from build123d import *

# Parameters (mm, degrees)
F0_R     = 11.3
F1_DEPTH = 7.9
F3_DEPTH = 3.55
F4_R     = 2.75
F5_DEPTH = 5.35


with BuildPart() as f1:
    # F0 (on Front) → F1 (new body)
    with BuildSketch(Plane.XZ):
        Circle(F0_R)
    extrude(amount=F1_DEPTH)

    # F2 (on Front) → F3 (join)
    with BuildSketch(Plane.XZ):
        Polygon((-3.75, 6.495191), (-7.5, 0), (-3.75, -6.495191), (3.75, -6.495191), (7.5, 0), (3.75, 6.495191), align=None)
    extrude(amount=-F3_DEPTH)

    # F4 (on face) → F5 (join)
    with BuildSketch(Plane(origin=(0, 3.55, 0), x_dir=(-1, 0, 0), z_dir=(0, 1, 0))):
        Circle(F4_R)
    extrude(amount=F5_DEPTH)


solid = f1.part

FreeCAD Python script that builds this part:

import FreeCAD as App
import Part
import Sketcher
Q = App.Units.Quantity

doc = App.newDocument("Part")
params = doc.addObject("Spreadsheet::Sheet", "Params")
for row, (alias, value) in enumerate([
    ("sketch1_diameter", "22.6 mm"),
    ("pad1_length", "7.9 mm"),
    ("sketch2_width", "7.5 mm"),
    ("pad2_length", "3.55 mm"),
    ("sketch3_diameter", "5.5 mm"),
    ("pad3_length", "5.35 mm"),
], start=1):
    params.set(f"A{row}", alias)
    params.set(f"B{row}", "=" + value)
    params.setAlias(f"B{row}", alias)

body = doc.addObject("PartDesign::Body", "Body")

# Sketch on XZ plane
sketch1 = doc.addObject("Sketcher::SketchObject", "Sketch")
body.addObject(sketch1)
sketch1.AttachmentSupport = (doc.XZ_Plane, [""])
sketch1.MapMode = "FlatFace"
sketch1.addGeometry(Part.Circle(App.Vector(0, 0, 0), App.Vector(0, 0, 1), 11), False)
sketch1.addConstraint(Sketcher.Constraint("Coincident", 0, 3, -1, 1))
sketch1.addConstraint(Sketcher.Constraint("Diameter", 0, 22.6))
sketch1.setExpression("Constraints[1]", "Params.sketch1_diameter")
pad1 = doc.addObject("PartDesign::Pad", "Pad")
body.addObject(pad1)
pad1.Profile = sketch1
pad1.setExpression("Length", "Params.pad1_length")

# Sketch on XZ plane
sketch2 = doc.addObject("Sketcher::SketchObject", "Sketch001")
body.addObject(sketch2)
sketch2.AttachmentSupport = (doc.XZ_Plane, [""])
sketch2.MapMode = "FlatFace"
sketch2.addGeometry(Part.LineSegment(App.Vector(-4, 6, 0), App.Vector(-8, 0, 0)), False)
sketch2.addGeometry(Part.LineSegment(App.Vector(-8, 0, 0), App.Vector(-4, -6, 0)), False)
sketch2.addGeometry(Part.LineSegment(App.Vector(-4, -6, 0), App.Vector(4, -6, 0)), False)
sketch2.addGeometry(Part.LineSegment(App.Vector(4, -6, 0), App.Vector(8, 0, 0)), False)
sketch2.addGeometry(Part.LineSegment(App.Vector(8, 0, 0), App.Vector(4, 6, 0)), False)
sketch2.addGeometry(Part.LineSegment(App.Vector(4, 6, 0), App.Vector(-4, 6, 0)), False)
sketch2.addConstraint(Sketcher.Constraint("Coincident", 0, 2, 1, 1))
sketch2.addConstraint(Sketcher.Constraint("Coincident", 1, 2, 2, 1))
sketch2.addConstraint(Sketcher.Constraint("Coincident", 2, 2, 3, 1))
sketch2.addConstraint(Sketcher.Constraint("Coincident", 3, 2, 4, 1))
sketch2.addConstraint(Sketcher.Constraint("Coincident", 4, 2, 5, 1))
sketch2.addConstraint(Sketcher.Constraint("Coincident", 5, 2, 0, 1))
sketch2.addConstraint(Sketcher.Constraint("Horizontal", 2))
sketch2.addConstraint(Sketcher.Constraint("Horizontal", 5))
sketch2.addConstraint(Sketcher.Constraint("Symmetric", 0, 2, 3, 2, -1, 1))
sketch2.addConstraint(Sketcher.Constraint("Symmetric", 1, 2, 4, 2, -1, 1))
sketch2.addConstraint(Sketcher.Constraint("PointOnObject", 0, 2, -1))
sketch2.addConstraint(Sketcher.Constraint("Parallel", 0, 3))
sketch2.addConstraint(Sketcher.Constraint("Vertical", 2, 2, 4, 2))
sketch2.addConstraint(Sketcher.Constraint("Angle", 0, Q("-119.999998 deg")))
sketch2.addConstraint(Sketcher.Constraint("DistanceX", 2, 1, 2, 2, 7.5))
sketch2.addConstraint(Sketcher.Constraint("DistanceX", 0, 2, 3, 2, 15.0))
sketch2.setExpression("Constraints[14]", "Params.sketch2_width")
pad2 = doc.addObject("PartDesign::Pad", "Pad001")
body.addObject(pad2)
pad2.Profile = sketch2
pad2.setExpression("Length", "Params.pad2_length")
pad2.Reversed = True

# Sketch on XZ plane
sketch3 = doc.addObject("Sketcher::SketchObject", "Sketch002")
body.addObject(sketch3)
sketch3.AttachmentSupport = (doc.XZ_Plane, [""])
sketch3.MapMode = "FlatFace"
sketch3.AttachmentOffset = App.Placement(App.Vector(0, 0, -3.55), App.Rotation())
sketch3.addGeometry(Part.Circle(App.Vector(0, 0, 0), App.Vector(0, 0, 1), 2.8), False)
sketch3.addConstraint(Sketcher.Constraint("Coincident", 0, 3, -1, 1))
sketch3.addConstraint(Sketcher.Constraint("Diameter", 0, 5.5))
sketch3.setExpression("Constraints[1]", "Params.sketch3_diameter")
pad3 = doc.addObject("PartDesign::Pad", "Pad002")
body.addObject(pad3)
pad3.Profile = sketch3
pad3.setExpression("Length", "Params.pad3_length")
pad3.Reversed = True

doc.recompute()
